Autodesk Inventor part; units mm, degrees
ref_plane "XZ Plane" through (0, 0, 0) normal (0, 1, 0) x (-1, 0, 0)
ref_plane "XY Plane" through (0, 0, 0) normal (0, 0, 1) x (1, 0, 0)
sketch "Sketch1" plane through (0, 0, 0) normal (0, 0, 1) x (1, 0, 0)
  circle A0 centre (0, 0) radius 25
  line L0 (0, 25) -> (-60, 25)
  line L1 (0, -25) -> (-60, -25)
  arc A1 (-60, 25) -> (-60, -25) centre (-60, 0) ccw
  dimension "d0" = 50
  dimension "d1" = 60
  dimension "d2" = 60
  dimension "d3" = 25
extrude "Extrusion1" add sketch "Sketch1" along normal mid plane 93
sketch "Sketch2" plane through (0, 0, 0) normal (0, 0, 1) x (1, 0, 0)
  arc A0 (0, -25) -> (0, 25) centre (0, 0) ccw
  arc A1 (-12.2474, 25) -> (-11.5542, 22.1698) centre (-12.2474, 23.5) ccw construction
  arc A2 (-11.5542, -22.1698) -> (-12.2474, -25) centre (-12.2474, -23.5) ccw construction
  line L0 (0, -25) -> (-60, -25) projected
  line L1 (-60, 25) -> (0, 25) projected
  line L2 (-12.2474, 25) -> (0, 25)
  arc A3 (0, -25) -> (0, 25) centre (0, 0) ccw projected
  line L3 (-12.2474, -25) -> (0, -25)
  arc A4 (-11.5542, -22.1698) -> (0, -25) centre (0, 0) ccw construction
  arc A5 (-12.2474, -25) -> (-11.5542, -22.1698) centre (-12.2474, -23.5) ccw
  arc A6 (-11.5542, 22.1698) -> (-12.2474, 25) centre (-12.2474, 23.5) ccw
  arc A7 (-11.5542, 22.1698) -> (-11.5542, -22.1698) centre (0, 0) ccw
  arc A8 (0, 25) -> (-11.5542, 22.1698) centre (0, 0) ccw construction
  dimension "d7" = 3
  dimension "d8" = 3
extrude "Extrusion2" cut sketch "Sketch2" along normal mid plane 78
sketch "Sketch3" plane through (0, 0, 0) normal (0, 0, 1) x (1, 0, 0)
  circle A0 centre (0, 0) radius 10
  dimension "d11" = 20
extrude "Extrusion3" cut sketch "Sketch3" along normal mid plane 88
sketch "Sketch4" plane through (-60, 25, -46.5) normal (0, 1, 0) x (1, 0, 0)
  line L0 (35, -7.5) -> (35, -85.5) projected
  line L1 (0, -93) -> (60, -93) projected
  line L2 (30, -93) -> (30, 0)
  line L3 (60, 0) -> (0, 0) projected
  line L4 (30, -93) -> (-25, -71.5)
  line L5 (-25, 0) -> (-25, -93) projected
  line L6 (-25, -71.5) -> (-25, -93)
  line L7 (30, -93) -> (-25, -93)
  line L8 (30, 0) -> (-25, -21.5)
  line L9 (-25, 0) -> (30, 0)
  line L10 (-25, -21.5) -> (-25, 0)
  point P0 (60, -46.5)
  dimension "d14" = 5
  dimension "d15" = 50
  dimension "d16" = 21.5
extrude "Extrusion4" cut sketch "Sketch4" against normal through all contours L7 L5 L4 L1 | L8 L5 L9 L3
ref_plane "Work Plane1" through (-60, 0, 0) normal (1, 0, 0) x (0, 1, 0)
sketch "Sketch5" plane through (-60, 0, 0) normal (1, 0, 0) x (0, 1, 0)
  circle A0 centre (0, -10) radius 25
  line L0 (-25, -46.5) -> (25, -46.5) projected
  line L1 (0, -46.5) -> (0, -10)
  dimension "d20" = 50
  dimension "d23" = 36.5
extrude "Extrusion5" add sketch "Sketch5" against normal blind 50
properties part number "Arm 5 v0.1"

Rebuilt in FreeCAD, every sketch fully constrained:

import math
import FreeCAD as App
import Part
import Sketcher
from FreeCAD import Vector


def add_polygon(sketch, points):
    """Adds a closed chain of lines whose ends are joined by coincident constraints."""
    first, n = sketch.GeometryCount, len(points)
    for a, b in zip(points, points[1:] + points[:1]):
        sketch.addGeometry(Part.LineSegment(App.Vector(*a, 0), App.Vector(*b, 0)), False)
    for i in range(n):
        sketch.addConstraint(Sketcher.Constraint("Coincident", first + i, 2, first + (i + 1) % n, 1))

doc = App.newDocument("Part")
params = doc.addObject("Spreadsheet::Sheet", "Params")
for row, (alias, value) in enumerate([
    ("sketch1_radius", "25 mm"),
    ("sketch1_width", "60 mm"),
    ("pad1_length", "93 mm"),
    ("sketch2_radius", "1.5 mm"),
    ("sketch2_radius2", "25 mm"),
    ("pocket1_length", "78 mm"),
    ("sketch3_diameter", "20 mm"),
    ("pocket2_length", "88 mm"),
    ("sketch4_height", "21.5 mm"),
    ("sketch4_width", "55 mm"),
    ("sketch5_diameter", "50 mm"),
    ("pad2_length", "50 mm"),
], start=1):
    params.set(f"A{row}", alias)
    params.set(f"B{row}", "=" + value)
    params.setAlias(f"B{row}", alias)

body = doc.addObject("PartDesign::Body", "Body")

sketch1 = doc.addObject("Sketcher::SketchObject", "Sketch")
body.addObject(sketch1)
sketch1.AttachmentSupport = (doc.XY_Plane, [""])
sketch1.MapMode = "FlatFace"
sketch1.addGeometry([
    Part.ArcOfCircle(Part.Circle(Vector(0, 0, 0), Vector(0, 0, 1), 25), math.radians(-90), math.radians(90)),
    Part.LineSegment(Vector(0, 25, 0), Vector(-60, 25, 0)),
    Part.ArcOfCircle(Part.Circle(Vector(-60, 0, 0), Vector(0, 0, 1), 25), math.radians(90), math.radians(270)),
    Part.LineSegment(Vector(-60, -25, 0), Vector(0, -25, 0)),
], False)
sketch1.addConstraint([
    Sketcher.Constraint("Tangent", 0, 2, 1, 1),
    Sketcher.Constraint("Tangent", 1, 2, 2, 1),
    Sketcher.Constraint("Tangent", 2, 2, 3, 1),
    Sketcher.Constraint("Tangent", 3, 2, 0, 1),
    Sketcher.Constraint("Horizontal", 1),
    Sketcher.Constraint("Horizontal", 3),
    Sketcher.Constraint("Coincident", 0, 3, -1, 1),
    Sketcher.Constraint("Radius", 0, 25.0),
    Sketcher.Constraint("DistanceX", 1, 2, 1, 1, 60.0),
])
sketch1.setExpression("Constraints[7]", "Params.sketch1_radius")
sketch1.setExpression("Constraints[8]", "Params.sketch1_width")
pad1 = doc.addObject("PartDesign::Pad", "Pad")
body.addObject(pad1)
pad1.Profile = sketch1
pad1.setExpression("Length", "Params.pad1_length")
pad1.Midplane = True

sketch2 = doc.addObject("Sketcher::SketchObject", "Sketch001")
body.addObject(sketch2)
sketch2.AttachmentSupport = (doc.XY_Plane, [""])
sketch2.MapMode = "FlatFace"
sketch2.addGeometry([
    Part.LineSegment(Vector(-12.2, -25, 0), Vector(0, -25, 0)),
    Part.ArcOfCircle(Part.Circle(Vector(0, 0, 0), Vector(0, 0, 1), 25), math.radians(-90), math.radians(90)),
    Part.LineSegment(Vector(0, 25, 0), Vector(-12.2, 25, 0)),
    Part.ArcOfCircle(Part.Circle(Vector(-12.2, 23.5, 0), Vector(0, 0, 1), 1.5), math.radians(-62), math.radians(90)),
    Part.ArcOfCircle(Part.Circle(Vector(0, 0, 0), Vector(0, 0, 1), 25), math.radians(118), math.radians(242)),
    Part.ArcOfCircle(Part.Circle(Vector(-12.2, -23.5, 0), Vector(0, 0, 1), 1.5), math.radians(-90), math.radians(62)),
], False)
sketch2.addConstraint([
    Sketcher.Constraint("Tangent", 0, 2, 1, 1),
    Sketcher.Constraint("Tangent", 1, 2, 2, 1),
    Sketcher.Constraint("Tangent", 2, 2, 3, 2),
    Sketcher.Constraint("Tangent", 3, 1, 4, 1),
    Sketcher.Constraint("Tangent", 4, 2, 5, 2),
    Sketcher.Constraint("Tangent", 5, 1, 0, 1),
    Sketcher.Constraint("Horizontal", 0),
    Sketcher.Constraint("Horizontal", 2),
    Sketcher.Constraint("Coincident", 1, 3, -1, 1),
    Sketcher.Constraint("Coincident", 4, 3, -1, 1),
    Sketcher.Constraint("Equal", 1, 4),
    Sketcher.Constraint("Equal", 3, 5),
    Sketcher.Constraint("Radius", 3, 1.5),
    Sketcher.Constraint("Radius", 1, 25.0),
])
sketch2.setExpression("Constraints[12]", "Params.sketch2_radius")
sketch2.setExpression("Constraints[13]", "Params.sketch2_radius2")
pocket1 = doc.addObject("PartDesign::Pocket", "Pocket")
body.addObject(pocket1)
pocket1.Profile = sketch2
pocket1.setExpression("Length", "Params.pocket1_length")
pocket1.Midplane = True

sketch3 = doc.addObject("Sketcher::SketchObject", "Sketch002")
body.addObject(sketch3)
sketch3.AttachmentSupport = (doc.XY_Plane, [""])
sketch3.MapMode = "FlatFace"
sketch3.addGeometry(Part.Circle(Vector(0, 0, 0), Vector(0, 0, 1), 10), False)
sketch3.addConstraint([
    Sketcher.Constraint("Coincident", 0, 3, -1, 1),
    Sketcher.Constraint("Diameter", 0, 20.0),
])
sketch3.setExpression("Constraints[1]", "Params.sketch3_diameter")
pocket2 = doc.addObject("PartDesign::Pocket", "Pocket001")
body.addObject(pocket2)
pocket2.Profile = sketch3
pocket2.setExpression("Length", "Params.pocket2_length")
pocket2.Midplane = True

sketch4 = doc.addObject("Sketcher::SketchObject", "Sketch003")
body.addObject(sketch4)
sketch4.AttachmentSupport = (doc.XZ_Plane, [""])
sketch4.MapMode = "FlatFace"
sketch4.AttachmentOffset = App.Placement(Vector(0, 0, -25), App.Rotation())
add_polygon(sketch4, [(-85, 46), (-30, 46), (-85, 25)])
add_polygon(sketch4, [(-85, -25), (-30, -46), (-85, -46)])
sketch4.addConstraint([
    Sketcher.Constraint("Horizontal", 0),
    Sketcher.Constraint("Vertical", 2),
    Sketcher.Constraint("Horizontal", 4),
    Sketcher.Constraint("Vertical", 5),
    Sketcher.Constraint("Symmetric", 0, 2, 3, 2, -1),
    Sketcher.Constraint("Symmetric", 1, 2, 5, 2, -1),
    Sketcher.Constraint("DistanceY", 2, 1, 2, 2, 21.5),
    Sketcher.Constraint("DistanceY", 5, 2, 1, 2, 50.0),
    Sketcher.Constraint("DistanceX", 0, 1, 0, 2, 55.0),
    Sketcher.Constraint("DistanceX", 0, 2, -1, 1, 30.0),
])
sketch4.setExpression("Constraints[12]", "Params.sketch4_height")
sketch4.setExpression("Constraints[14]", "Params.sketch4_width")
pocket3 = doc.addObject("PartDesign::Pocket", "Pocket002")
body.addObject(pocket3)
pocket3.Profile = sketch4
pocket3.Type = "ThroughAll"
pocket3.Reversed = True

sketch5 = doc.addObject("Sketcher::SketchObject", "Sketch004")
body.addObject(sketch5)
sketch5.AttachmentSupport = (doc.YZ_Plane, [""])
sketch5.MapMode = "FlatFace"
sketch5.AttachmentOffset = App.Placement(Vector(0, 0, -60), App.Rotation())
sketch5.addGeometry(Part.Circle(Vector(0, -10, 0), Vector(0, 0, 1), 25), False)
sketch5.addConstraint([
    Sketcher.Constraint("PointOnObject", 0, 3, -2),
    Sketcher.Constraint("Diameter", 0, 50.0),
    Sketcher.Constraint("DistanceY", 0, 3, -1, 1, 10.0),
])
sketch5.setExpression("Constraints[1]", "Params.sketch5_diameter")
pad2 = doc.addObject("PartDesign::Pad", "Pad001")
body.addObject(pad2)
pad2.Profile = sketch5
pad2.setExpression("Length", "Params.pad2_length")
pad2.Reversed = True

doc.recompute()
